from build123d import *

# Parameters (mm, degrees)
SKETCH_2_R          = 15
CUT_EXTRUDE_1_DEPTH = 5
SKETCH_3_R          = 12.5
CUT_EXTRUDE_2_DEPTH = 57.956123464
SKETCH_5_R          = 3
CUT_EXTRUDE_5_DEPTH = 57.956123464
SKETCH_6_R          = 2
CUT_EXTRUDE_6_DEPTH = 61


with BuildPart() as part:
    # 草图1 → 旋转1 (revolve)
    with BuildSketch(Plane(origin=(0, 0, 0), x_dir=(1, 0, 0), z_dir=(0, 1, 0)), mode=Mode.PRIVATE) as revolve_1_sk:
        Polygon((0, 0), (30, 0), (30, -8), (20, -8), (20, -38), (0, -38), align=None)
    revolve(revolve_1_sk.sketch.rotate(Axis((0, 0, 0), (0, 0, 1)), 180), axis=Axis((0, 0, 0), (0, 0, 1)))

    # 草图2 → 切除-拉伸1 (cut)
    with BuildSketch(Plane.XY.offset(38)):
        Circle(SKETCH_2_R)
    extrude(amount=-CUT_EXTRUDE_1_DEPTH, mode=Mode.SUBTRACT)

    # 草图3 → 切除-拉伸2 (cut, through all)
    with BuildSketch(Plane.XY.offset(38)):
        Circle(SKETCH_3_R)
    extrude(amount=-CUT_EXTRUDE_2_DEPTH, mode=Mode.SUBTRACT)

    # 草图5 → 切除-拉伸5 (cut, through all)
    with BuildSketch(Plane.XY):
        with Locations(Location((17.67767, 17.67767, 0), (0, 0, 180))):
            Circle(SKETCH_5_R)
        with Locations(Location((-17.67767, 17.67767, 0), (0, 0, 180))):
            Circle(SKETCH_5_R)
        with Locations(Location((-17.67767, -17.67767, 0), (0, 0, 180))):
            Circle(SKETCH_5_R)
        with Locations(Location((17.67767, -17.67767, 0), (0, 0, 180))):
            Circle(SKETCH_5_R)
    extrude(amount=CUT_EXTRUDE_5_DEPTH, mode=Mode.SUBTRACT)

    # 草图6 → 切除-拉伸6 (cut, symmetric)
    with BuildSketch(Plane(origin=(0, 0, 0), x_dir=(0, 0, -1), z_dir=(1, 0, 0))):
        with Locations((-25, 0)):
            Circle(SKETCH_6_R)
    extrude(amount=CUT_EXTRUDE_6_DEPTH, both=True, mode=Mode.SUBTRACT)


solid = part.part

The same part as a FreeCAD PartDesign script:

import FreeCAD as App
import Part
import Sketcher

V = App.Vector
Q = App.Units.Quantity

doc = App.newDocument("Part")
body = doc.addObject("PartDesign::Body", "Body")

# Sketch on XZ plane
sketch1 = body.newObject("Sketcher::SketchObject", "Sketch")
sketch1.AttachmentSupport = (doc.getObject("XZ_Plane"), [""])
sketch1.MapMode = "FlatFace"
sketch1.addGeometry([
    Part.LineSegment(V(30, 0, 0), V(0, 0, 0)),  # 0
    Part.LineSegment(V(0, 0, 0), V(0, 38, 0)),  # 1
    Part.LineSegment(V(0, 38, 0), V(20, 38, 0)),  # 2
    Part.LineSegment(V(20, 38, 0), V(20, 8, 0)),  # 3
    Part.LineSegment(V(20, 8, 0), V(30, 8, 0)),  # 4
    Part.LineSegment(V(30, 8, 0), V(30, 0, 0)),  # 5
], False)
sketch1.addConstraint([
    Sketcher.Constraint("Coincident", 0, 2, 1, 1),
    Sketcher.Constraint("Coincident", 1, 2, 2, 1),
    Sketcher.Constraint("Coincident", 2, 2, 3, 1),
    Sketcher.Constraint("Coincident", 3, 2, 4, 1),
    Sketcher.Constraint("Coincident", 4, 2, 5, 1),
    Sketcher.Constraint("Coincident", 5, 2, 0, 1),
    Sketcher.Constraint("Horizontal", 0),
    Sketcher.Constraint("Vertical", 1),
    Sketcher.Constraint("Horizontal", 2),
    Sketcher.Constraint("Vertical", 3),
    Sketcher.Constraint("Horizontal", 4),
    Sketcher.Constraint("Vertical", 5),
    Sketcher.Constraint("Coincident", 0, 2, -1, 1),
    Sketcher.Constraint("Equal", 0, 3),
    Sketcher.Constraint("DistanceX", 0, 2, 0, 1, Q("30 mm")),
    Sketcher.Constraint("DistanceX", 2, 1, 2, 2, Q("20 mm")),
    Sketcher.Constraint("DistanceY", 1, 1, 1, 2, Q("38 mm")),
])
revolution = body.newObject("PartDesign::Revolution", "Revolution")
revolution.Profile = sketch1
revolution.ReferenceAxis = (sketch1, ["V_Axis"])
revolution.Angle = 360

# Sketch on XY plane
sketch2 = body.newObject("Sketcher::SketchObject", "Sketch001")
sketch2.AttachmentSupport = (doc.getObject("XY_Plane"), [""])
sketch2.MapMode = "FlatFace"
sketch2.AttachmentOffset = App.Placement(V(0, 0, 38), App.Rotation())
sketch2.addGeometry(Part.Circle(V(0, 0, 0), V(0, 0, 1), 15), False)
sketch2.addConstraint([
    Sketcher.Constraint("Coincident", 0, 3, -1, 1),
    Sketcher.Constraint("Diameter", 0, Q("30 mm")),
])
pocket1 = body.newObject("PartDesign::Pocket", "Pocket")
pocket1.Profile = sketch2
pocket1.Length = 5

# Sketch on XY plane
sketch3 = body.newObject("Sketcher::SketchObject", "Sketch002")
sketch3.AttachmentSupport = (doc.getObject("XY_Plane"), [""])
sketch3.MapMode = "FlatFace"
sketch3.AttachmentOffset = App.Placement(V(0, 0, 38), App.Rotation())
sketch3.addGeometry(Part.Circle(V(0, 0, 0), V(0, 0, 1), 12), False)
sketch3.addConstraint([
    Sketcher.Constraint("Coincident", 0, 3, -1, 1),
    Sketcher.Constraint("Diameter", 0, Q("25 mm")),
])
pocket2 = body.newObject("PartDesign::Pocket", "Pocket001")
pocket2.Profile = sketch3
pocket2.Type = "ThroughAll"

# Sketch on XY plane
sketch4 = body.newObject("Sketcher::SketchObject", "Sketch003")
sketch4.AttachmentSupport = (doc.getObject("XY_Plane"), [""])
sketch4.MapMode = "FlatFace"
sketch4.addGeometry([
    Part.Circle(V(17.7, 17.7, 0), V(0, 0, 1), 3),
    Part.Circle(V(-17.7, 17.7, 0), V(0, 0, 1), 3),
    Part.Circle(V(-17.7, -17.7, 0), V(0, 0, 1), 3),
    Part.Circle(V(17.7, -17.7, 0), V(0, 0, 1), 3),
], False)
sketch4.addConstraint([
    Sketcher.Constraint("Equal", 0, 1),
    Sketcher.Constraint("Equal", 1, 2),
    Sketcher.Constraint("Equal", 2, 3),
    Sketcher.Constraint("Symmetric", 0, 3, 2, 3, -1, 1),
    Sketcher.Constraint("Symmetric", 1, 3, 3, 3, -1, 1),
    Sketcher.Constraint("Symmetric", 0, 3, 1, 3, -2),
    Sketcher.Constraint("Diameter", 0, Q("6 mm")),
    Sketcher.Constraint("DistanceX", -1, 1, 0, 3, Q("17.67767 mm")),
    Sketcher.Constraint("DistanceY", -1, 1, 0, 3, Q("17.67767 mm")),
])
pocket3 = body.newObject("PartDesign::Pocket", "Pocket002")
pocket3.Profile = sketch4
pocket3.Type = "ThroughAll"
pocket3.Reversed = True

# Sketch on YZ plane
sketch5 = body.newObject("Sketcher::SketchObject", "Sketch004")
sketch5.AttachmentSupport = (doc.getObject("YZ_Plane"), [""])
sketch5.MapMode = "FlatFace"
sketch5.addGeometry(Part.Circle(V(0, 25, 0), V(0, 0, 1), 2), False)
sketch5.addConstraint([
    Sketcher.Constraint("PointOnObject", 0, 3, -2),
    Sketcher.Constraint("Diameter", 0, Q("4 mm")),
    Sketcher.Constraint("DistanceY", -1, 1, 0, 3, Q("25 mm")),
])
pocket4 = body.newObject("PartDesign::Pocket", "Pocket003")
pocket4.Profile = sketch5
pocket4.Length = 122
pocket4.Midplane = True

doc.recompute()
